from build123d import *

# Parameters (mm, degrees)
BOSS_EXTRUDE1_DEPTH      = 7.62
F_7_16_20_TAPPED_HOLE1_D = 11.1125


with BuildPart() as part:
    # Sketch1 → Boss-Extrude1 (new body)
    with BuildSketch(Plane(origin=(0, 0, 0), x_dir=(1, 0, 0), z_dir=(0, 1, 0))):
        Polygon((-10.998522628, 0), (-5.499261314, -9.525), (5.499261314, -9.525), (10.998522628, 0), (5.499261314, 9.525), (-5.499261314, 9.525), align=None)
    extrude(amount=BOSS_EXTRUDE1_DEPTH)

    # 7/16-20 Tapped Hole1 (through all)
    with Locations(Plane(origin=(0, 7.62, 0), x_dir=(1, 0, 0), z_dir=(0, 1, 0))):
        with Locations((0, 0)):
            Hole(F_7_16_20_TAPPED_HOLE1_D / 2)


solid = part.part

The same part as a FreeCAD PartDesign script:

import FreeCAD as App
import Part
import Sketcher
Q = App.Units.Quantity


def add_polygon(sketch, points):
    """Adds a closed chain of lines whose ends are joined by coincident constraints."""
    first, n = sketch.GeometryCount, len(points)
    for a, b in zip(points, points[1:] + points[:1]):
        sketch.addGeometry(Part.LineSegment(App.Vector(*a, 0), App.Vector(*b, 0)), False)
    for i in range(n):
        sketch.addConstraint(Sketcher.Constraint("Coincident", first + i, 2, first + (i + 1) % n, 1))

doc = App.newDocument("Part")
params = doc.addObject("Spreadsheet::Sheet", "Params")
for row, (alias, value) in enumerate([
    ("pad1_length", "0.3 in"),
    ("sketch2_diameter", "0.4375 in"),
    ("hole_diameter", "0.4375 in"),
], start=1):
    params.set(f"A{row}", alias)
    params.set(f"B{row}", "=" + value)
    params.setAlias(f"B{row}", alias)

body = doc.addObject("PartDesign::Body", "Body")

sketch1 = body.newObject("Sketcher::SketchObject", "Sketch")
sketch1.AttachmentSupport = (doc.getObject("XZ_Plane"), [""])
sketch1.MapMode = "FlatFace"
add_polygon(sketch1, [(-11, 0), (-5, 10), (5, 10), (11, 0), (5, -10), (-5, -10)])
sketch1.addConstraint(Sketcher.Constraint("Horizontal", 1))
sketch1.addConstraint(Sketcher.Constraint("Horizontal", 4))
sketch1.addConstraint(Sketcher.Constraint("Symmetric", 0, 2, 3, 2, -1, 1))
sketch1.addConstraint(Sketcher.Constraint("Symmetric", 2, 2, 5, 2, -1, 1))
sketch1.addConstraint(Sketcher.Constraint("PointOnObject", 2, 2, -1))
sketch1.addConstraint(Sketcher.Constraint("Parallel", 2, 5))
sketch1.addConstraint(Sketcher.Constraint("Vertical", 1, 2, 3, 2))
sketch1.addConstraint(Sketcher.Constraint("Angle", 0, Q("60 deg")))
sketch1.addConstraint(Sketcher.Constraint("DistanceY", 3, 2, 1, 2, Q("0.75 in")))
sketch1.addConstraint(Sketcher.Constraint("DistanceX", 1, 1, 1, 2, Q("10.998523 mm")))
pad1 = body.newObject("PartDesign::Pad", "Pad")
pad1.Profile = sketch1
pad1.setExpression("Length", "Params.pad1_length")
pad1.Reversed = True

sketch2 = body.newObject("Sketcher::SketchObject", "Sketch001")
sketch2.AttachmentSupport = (doc.getObject("XZ_Plane"), [""])
sketch2.MapMode = "FlatFace"
sketch2.AttachmentOffset = App.Placement(App.Vector(0, 0, -0.3 * 25.4), App.Rotation())
sketch2.addGeometry(Part.Circle(App.Vector(0, 0, 0), App.Vector(0, 0, 1), 6), False)
sketch2.addConstraint(Sketcher.Constraint("Coincident", 0, 3, -1, 1))
sketch2.addConstraint(Sketcher.Constraint("Diameter", 0, Q("0.4375 in")))
sketch2.setExpression("Constraints[1]", "Params.sketch2_diameter")
doc.recompute()
hole = body.newObject("PartDesign::Hole", "Hole")
hole.Profile = sketch2
hole.ThreadType = "None"
hole.setExpression("Diameter", "Params.hole_diameter")
hole.DepthType = "ThroughAll"
hole.Reversed = True

doc.recompute()
